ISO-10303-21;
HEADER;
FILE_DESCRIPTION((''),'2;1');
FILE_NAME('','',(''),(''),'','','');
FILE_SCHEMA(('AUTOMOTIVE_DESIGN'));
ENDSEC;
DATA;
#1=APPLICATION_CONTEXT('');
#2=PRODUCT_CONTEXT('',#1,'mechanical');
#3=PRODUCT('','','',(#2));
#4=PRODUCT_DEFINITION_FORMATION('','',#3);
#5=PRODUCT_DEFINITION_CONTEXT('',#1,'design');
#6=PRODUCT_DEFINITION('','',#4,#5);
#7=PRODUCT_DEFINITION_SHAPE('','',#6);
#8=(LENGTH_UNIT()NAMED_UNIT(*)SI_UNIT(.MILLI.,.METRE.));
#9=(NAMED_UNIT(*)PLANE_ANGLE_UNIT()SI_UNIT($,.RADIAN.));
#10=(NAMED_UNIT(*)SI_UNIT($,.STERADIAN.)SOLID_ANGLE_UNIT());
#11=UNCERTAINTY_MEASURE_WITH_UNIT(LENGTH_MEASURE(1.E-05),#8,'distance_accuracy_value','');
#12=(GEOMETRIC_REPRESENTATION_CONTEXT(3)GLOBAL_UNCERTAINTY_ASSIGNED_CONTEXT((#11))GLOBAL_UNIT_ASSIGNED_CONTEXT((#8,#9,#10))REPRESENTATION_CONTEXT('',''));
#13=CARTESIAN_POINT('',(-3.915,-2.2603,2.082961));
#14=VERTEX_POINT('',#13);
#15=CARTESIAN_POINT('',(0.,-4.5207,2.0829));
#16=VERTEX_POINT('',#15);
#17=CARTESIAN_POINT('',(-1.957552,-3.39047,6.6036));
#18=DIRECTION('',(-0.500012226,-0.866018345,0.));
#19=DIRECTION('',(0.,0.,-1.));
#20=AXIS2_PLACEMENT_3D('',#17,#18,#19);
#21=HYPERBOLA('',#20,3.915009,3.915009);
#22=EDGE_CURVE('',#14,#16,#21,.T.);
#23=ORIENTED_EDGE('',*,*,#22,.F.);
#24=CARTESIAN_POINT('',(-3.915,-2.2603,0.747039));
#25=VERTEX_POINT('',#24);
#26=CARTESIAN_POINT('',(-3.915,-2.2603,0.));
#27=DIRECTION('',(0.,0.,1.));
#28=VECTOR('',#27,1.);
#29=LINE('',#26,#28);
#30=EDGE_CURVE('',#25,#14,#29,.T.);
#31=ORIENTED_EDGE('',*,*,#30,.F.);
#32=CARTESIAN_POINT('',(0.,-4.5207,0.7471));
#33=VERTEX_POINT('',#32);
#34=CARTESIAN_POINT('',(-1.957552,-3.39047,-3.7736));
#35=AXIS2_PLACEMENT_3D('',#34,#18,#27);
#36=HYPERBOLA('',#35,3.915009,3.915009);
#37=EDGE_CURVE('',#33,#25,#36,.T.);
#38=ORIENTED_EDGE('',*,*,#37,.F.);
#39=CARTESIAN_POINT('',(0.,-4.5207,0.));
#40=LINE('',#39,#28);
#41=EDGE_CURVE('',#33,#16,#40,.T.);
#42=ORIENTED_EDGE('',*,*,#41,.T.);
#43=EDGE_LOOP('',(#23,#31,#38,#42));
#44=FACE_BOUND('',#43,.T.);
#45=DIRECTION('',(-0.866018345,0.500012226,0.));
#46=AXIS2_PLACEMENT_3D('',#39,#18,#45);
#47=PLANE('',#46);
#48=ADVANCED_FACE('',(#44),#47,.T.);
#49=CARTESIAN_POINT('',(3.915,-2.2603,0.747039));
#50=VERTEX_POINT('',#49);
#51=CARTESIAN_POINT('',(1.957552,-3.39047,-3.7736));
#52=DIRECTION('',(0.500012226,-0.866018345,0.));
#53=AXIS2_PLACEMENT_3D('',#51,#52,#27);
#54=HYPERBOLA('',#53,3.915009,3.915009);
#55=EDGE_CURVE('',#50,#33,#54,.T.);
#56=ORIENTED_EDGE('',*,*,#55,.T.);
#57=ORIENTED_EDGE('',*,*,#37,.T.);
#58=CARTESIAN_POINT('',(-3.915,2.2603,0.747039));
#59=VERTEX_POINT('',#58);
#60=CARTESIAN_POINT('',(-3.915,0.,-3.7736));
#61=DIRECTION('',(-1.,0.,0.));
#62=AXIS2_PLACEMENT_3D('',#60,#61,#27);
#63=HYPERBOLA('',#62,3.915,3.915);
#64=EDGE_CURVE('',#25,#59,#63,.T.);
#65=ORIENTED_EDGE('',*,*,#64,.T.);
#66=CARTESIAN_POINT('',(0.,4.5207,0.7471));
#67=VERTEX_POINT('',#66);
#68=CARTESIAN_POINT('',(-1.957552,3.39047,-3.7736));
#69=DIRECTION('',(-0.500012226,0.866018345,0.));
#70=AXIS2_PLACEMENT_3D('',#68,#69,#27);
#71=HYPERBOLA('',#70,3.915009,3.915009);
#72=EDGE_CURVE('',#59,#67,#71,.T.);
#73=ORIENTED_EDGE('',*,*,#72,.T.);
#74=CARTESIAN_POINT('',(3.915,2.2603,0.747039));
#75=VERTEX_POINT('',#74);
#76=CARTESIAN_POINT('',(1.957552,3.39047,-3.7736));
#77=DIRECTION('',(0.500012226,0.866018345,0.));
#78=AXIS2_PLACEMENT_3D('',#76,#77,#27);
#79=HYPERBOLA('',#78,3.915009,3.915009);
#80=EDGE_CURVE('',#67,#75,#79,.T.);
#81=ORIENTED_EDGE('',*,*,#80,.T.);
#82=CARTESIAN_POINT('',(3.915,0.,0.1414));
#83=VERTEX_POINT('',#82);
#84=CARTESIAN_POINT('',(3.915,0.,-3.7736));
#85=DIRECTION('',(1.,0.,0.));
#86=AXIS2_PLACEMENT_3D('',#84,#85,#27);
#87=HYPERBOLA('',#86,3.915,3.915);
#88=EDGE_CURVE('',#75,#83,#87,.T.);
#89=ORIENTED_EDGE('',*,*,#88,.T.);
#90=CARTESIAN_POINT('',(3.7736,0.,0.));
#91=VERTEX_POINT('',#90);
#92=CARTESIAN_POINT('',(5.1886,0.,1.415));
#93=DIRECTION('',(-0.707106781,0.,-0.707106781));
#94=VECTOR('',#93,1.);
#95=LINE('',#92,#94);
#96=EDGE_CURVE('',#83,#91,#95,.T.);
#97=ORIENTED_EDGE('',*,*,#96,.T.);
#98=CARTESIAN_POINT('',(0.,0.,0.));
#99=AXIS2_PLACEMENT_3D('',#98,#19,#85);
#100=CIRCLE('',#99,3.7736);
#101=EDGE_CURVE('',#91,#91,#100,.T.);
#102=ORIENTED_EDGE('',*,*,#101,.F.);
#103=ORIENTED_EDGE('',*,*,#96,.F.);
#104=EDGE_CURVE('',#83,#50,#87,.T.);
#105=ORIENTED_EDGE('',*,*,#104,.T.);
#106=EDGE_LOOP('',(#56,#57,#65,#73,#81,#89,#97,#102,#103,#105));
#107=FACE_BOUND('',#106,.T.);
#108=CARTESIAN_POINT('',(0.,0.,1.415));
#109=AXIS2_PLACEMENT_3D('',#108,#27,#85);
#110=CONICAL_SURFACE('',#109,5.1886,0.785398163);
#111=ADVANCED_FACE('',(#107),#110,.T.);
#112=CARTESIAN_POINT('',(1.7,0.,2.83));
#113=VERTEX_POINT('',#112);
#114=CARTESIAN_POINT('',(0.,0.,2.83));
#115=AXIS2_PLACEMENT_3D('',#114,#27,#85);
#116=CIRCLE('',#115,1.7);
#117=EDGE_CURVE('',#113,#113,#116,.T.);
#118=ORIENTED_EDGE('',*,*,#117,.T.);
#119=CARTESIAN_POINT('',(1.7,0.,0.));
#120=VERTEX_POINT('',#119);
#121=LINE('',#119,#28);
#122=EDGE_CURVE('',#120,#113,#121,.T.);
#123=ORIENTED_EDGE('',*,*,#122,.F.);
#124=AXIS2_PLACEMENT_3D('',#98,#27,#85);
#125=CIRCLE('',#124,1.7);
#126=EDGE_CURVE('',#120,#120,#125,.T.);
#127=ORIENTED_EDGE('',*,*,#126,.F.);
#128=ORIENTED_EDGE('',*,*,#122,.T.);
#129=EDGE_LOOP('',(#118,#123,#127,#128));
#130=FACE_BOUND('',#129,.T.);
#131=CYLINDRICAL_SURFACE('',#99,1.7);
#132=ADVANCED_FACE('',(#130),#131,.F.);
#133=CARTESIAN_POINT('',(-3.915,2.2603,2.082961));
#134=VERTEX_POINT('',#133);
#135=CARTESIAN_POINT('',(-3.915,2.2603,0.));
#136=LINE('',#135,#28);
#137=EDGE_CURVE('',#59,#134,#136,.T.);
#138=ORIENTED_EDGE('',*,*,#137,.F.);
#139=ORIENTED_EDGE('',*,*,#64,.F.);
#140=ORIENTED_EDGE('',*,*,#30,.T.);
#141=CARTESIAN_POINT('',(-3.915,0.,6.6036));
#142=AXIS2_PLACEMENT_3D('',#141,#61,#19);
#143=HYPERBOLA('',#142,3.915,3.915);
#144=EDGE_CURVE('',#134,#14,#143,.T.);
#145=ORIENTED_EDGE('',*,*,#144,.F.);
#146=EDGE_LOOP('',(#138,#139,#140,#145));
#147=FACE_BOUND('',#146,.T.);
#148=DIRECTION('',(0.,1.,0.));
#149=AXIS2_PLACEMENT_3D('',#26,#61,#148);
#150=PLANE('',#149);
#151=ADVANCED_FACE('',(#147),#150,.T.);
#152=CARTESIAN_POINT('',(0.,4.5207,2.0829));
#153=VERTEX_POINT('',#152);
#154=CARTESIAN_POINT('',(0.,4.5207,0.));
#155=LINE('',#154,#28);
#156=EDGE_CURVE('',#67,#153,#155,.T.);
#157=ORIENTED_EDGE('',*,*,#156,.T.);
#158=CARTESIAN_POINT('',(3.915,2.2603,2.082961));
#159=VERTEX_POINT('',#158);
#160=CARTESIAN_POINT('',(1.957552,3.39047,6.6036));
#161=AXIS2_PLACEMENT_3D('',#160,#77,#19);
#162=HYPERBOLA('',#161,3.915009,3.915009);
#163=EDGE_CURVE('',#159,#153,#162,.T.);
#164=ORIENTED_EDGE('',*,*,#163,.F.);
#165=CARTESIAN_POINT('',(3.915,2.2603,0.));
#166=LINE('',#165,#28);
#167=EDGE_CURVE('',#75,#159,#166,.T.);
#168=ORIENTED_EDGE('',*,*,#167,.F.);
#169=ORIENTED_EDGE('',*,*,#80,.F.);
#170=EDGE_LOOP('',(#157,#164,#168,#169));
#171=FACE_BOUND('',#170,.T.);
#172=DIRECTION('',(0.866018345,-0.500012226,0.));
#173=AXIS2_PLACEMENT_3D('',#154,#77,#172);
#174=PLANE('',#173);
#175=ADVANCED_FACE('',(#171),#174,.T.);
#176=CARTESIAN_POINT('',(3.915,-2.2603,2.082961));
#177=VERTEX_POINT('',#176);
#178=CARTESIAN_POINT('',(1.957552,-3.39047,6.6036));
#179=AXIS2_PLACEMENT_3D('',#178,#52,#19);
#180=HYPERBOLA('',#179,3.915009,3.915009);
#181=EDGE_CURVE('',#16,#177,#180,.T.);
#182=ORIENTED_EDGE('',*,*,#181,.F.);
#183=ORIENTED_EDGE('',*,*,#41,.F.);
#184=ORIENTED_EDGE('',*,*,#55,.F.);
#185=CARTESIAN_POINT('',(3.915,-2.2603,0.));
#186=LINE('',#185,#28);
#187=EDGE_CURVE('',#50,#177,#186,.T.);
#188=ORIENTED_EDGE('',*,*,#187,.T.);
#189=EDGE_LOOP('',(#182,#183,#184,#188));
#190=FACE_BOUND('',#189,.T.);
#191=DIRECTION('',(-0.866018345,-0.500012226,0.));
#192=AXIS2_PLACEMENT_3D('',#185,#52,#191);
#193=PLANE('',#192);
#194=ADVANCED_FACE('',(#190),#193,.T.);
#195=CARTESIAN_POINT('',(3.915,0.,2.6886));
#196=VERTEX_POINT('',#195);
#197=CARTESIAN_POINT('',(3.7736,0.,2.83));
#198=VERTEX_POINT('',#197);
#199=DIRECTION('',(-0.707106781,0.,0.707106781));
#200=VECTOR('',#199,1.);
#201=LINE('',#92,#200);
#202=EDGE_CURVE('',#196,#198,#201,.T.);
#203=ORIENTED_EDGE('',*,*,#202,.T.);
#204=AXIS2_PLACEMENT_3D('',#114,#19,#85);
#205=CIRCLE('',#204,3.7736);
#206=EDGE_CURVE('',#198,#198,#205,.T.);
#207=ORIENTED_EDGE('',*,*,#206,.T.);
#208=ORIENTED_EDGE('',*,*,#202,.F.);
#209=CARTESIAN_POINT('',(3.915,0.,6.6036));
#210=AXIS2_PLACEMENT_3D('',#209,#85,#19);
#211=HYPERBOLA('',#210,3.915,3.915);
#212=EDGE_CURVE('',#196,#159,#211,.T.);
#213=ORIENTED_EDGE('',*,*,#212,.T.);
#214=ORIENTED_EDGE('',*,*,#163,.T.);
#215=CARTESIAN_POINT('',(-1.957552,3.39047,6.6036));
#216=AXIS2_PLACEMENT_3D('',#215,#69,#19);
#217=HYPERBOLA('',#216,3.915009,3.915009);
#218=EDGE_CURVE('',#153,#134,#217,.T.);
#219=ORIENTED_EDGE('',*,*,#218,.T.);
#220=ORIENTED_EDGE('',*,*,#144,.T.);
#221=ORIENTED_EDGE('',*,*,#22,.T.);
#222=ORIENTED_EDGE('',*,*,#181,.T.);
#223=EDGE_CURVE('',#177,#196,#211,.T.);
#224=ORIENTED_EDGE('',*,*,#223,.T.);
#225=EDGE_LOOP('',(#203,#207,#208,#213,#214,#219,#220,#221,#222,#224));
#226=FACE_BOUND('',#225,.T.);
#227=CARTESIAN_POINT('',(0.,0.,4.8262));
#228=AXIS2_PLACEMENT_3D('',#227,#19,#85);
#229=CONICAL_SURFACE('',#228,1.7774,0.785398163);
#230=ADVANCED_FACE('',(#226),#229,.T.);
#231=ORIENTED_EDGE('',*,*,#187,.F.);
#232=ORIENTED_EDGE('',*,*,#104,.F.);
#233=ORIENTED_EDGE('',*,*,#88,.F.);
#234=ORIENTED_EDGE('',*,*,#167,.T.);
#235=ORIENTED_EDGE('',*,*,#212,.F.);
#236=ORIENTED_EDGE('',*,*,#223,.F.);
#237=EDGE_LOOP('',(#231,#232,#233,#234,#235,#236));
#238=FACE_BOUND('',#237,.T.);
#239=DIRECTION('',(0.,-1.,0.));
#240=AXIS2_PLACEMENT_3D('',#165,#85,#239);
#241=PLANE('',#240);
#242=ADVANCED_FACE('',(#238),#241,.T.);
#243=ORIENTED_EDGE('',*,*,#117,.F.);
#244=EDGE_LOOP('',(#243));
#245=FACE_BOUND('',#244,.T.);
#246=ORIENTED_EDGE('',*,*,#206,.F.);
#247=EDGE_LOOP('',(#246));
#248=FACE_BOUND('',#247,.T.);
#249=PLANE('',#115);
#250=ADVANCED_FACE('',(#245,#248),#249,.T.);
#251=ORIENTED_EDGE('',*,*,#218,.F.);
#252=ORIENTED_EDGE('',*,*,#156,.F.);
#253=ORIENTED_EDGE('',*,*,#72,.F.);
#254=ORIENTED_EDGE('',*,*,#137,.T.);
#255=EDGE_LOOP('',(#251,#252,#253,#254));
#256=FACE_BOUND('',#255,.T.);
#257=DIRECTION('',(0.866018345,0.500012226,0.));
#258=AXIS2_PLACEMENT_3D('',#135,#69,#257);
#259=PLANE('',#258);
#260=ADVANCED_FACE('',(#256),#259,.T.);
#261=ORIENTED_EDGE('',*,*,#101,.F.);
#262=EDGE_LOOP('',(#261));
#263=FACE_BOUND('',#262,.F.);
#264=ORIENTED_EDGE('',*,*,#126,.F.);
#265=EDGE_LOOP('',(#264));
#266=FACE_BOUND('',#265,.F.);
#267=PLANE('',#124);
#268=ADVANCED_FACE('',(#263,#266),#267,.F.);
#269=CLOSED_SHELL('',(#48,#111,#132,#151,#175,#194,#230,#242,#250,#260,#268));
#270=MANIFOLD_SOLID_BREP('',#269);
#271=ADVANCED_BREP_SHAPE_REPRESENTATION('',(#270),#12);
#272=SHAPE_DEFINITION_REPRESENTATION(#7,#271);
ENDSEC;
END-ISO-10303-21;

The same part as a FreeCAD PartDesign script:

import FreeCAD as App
import Part
import Sketcher

V = App.Vector
Q = App.Units.Quantity

doc = App.newDocument("Part")
params = doc.addObject("Spreadsheet::Sheet", "Params")
for row, (alias, value) in enumerate([
    ("sketch1_diameter", "3.4 mm"),
    ("pad1_length", "2.83 mm"),
    ("groove_angle", "360 deg"),
], start=1):
    params.set(f"A{row}", alias)
    params.set(f"B{row}", "=" + value)
    params.setAlias(f"B{row}", alias)

body = doc.addObject("PartDesign::Body", "Body")

sketch1 = body.newObject("Sketcher::SketchObject", "Sketch")
sketch1.AttachmentSupport = (doc.getObject("XY_Plane"), [""])
sketch1.MapMode = "FlatFace"
sketch1.addGeometry(Part.LineSegment(V(3.9, 2.3, 0), V(0, 4.5, 0)), False)
sketch1.addGeometry(Part.LineSegment(V(0, 4.5, 0), V(-3.9, 2.3, 0)), False)
sketch1.addGeometry(Part.LineSegment(V(-3.9, 2.3, 0), V(-3.9, -2.3, 0)), False)
sketch1.addGeometry(Part.LineSegment(V(-3.9, -2.3, 0), V(0, -4.5, 0)), False)
sketch1.addGeometry(Part.LineSegment(V(0, -4.5, 0), V(3.9, -2.3, 0)), False)
sketch1.addGeometry(Part.LineSegment(V(3.9, -2.3, 0), V(3.9, 2.3, 0)), False)
sketch1.addGeometry(Part.Circle(V(0, 0, 0), V(0, 0, 1), 1.7), False)
sketch1.addConstraint(Sketcher.Constraint("Coincident", 0, 2, 1, 1))
sketch1.addConstraint(Sketcher.Constraint("Coincident", 1, 2, 2, 1))
sketch1.addConstraint(Sketcher.Constraint("Coincident", 2, 2, 3, 1))
sketch1.addConstraint(Sketcher.Constraint("Coincident", 3, 2, 4, 1))
sketch1.addConstraint(Sketcher.Constraint("Coincident", 4, 2, 5, 1))
sketch1.addConstraint(Sketcher.Constraint("Coincident", 5, 2, 0, 1))
sketch1.addConstraint(Sketcher.Constraint("Vertical", 2))
sketch1.addConstraint(Sketcher.Constraint("Vertical", 5))
sketch1.addConstraint(Sketcher.Constraint("Coincident", 6, 3, -1, 1))
sketch1.addConstraint(Sketcher.Constraint("Symmetric", 0, 2, 3, 2, -1, 1))
sketch1.addConstraint(Sketcher.Constraint("Symmetric", 1, 2, 4, 2, -1, 1))
sketch1.addConstraint(Sketcher.Constraint("PointOnObject", 0, 2, -2))
sketch1.addConstraint(Sketcher.Constraint("Parallel", 0, 3))
sketch1.addConstraint(Sketcher.Constraint("Horizontal", 2, 2, 4, 2))
sketch1.addConstraint(Sketcher.Constraint("Diameter", 6, Q("3.4 mm")))
sketch1.addConstraint(Sketcher.Constraint("Angle", 0, Q("149.9992 deg")))
sketch1.addConstraint(Sketcher.Constraint("DistanceX", 2, 2, 4, 2, Q("7.83 mm")))
sketch1.addConstraint(Sketcher.Constraint("DistanceY", 2, 2, 2, 1, Q("4.5206 mm")))
sketch1.setExpression("Constraints[14]", "Params.sketch1_diameter")
pad1 = body.newObject("PartDesign::Pad", "Pad")
pad1.Profile = sketch1
pad1.setExpression("Length", "Params.pad1_length")

sketch2 = body.newObject("Sketcher::SketchObject", "Sketch001")
sketch2.AttachmentSupport = (doc.getObject("XZ_Plane"), [""])
sketch2.MapMode = "FlatFace"
sketch2.addGeometry(Part.LineSegment(V(4.6, 7.6, 0), V(1.8, 4.8, 0)), False)
sketch2.addGeometry(Part.LineSegment(V(1.8, 4.8, 0), V(5.2, 1.4, 0)), False)
sketch2.addGeometry(Part.LineSegment(V(5.2, 1.4, 0), V(2.2, -1.6, 0)), False)
sketch2.addGeometry(Part.LineSegment(V(2.2, -1.6, 0), V(4.5, -3.8, 0)), False)
sketch2.addGeometry(Part.LineSegment(V(4.5, -3.8, 0), V(10.3, 1.9, 0)), False)
sketch2.addGeometry(Part.LineSegment(V(10.3, 1.9, 0), V(4.6, 7.6, 0)), False)
sketch2.addConstraint(Sketcher.Constraint("Coincident", 0, 2, 1, 1))
sketch2.addConstraint(Sketcher.Constraint("Coincident", 1, 2, 2, 1))
sketch2.addConstraint(Sketcher.Constraint("Coincident", 2, 2, 3, 1))
sketch2.addConstraint(Sketcher.Constraint("Coincident", 3, 2, 4, 1))
sketch2.addConstraint(Sketcher.Constraint("Coincident", 4, 2, 5, 1))
sketch2.addConstraint(Sketcher.Constraint("Coincident", 5, 2, 0, 1))
sketch2.addConstraint(Sketcher.Constraint("Perpendicular", 0, 1))
sketch2.addConstraint(Sketcher.Constraint("Perpendicular", 1, 2))
sketch2.addConstraint(Sketcher.Constraint("Perpendicular", 2, 3))
sketch2.addConstraint(Sketcher.Constraint("Perpendicular", 3, 4))
sketch2.addConstraint(Sketcher.Constraint("Perpendicular", 4, 5))
sketch2.addConstraint(Sketcher.Constraint("Angle", 1, Q("-45 deg")))
sketch2.addConstraint(Sketcher.Constraint("DistanceY", 3, 2, -1, 1, Q("3.85 mm")))
sketch2.addConstraint(Sketcher.Constraint("DistanceX", 0, 2, 4, 2, Q("8.51 mm")))
sketch2.addConstraint(Sketcher.Constraint("Distance", 4, Q("8.198 mm")))
sketch2.addConstraint(Sketcher.Constraint("DistanceY", -1, 1, 1, 2, Q("1.415 mm")))
sketch2.addConstraint(Sketcher.Constraint("DistanceX", -1, 1, 2, 2, Q("2.207 mm")))
sketch2.addConstraint(Sketcher.Constraint("DistanceX", 3, 2, 1, 2, Q("0.698 mm")))
groove = body.newObject("PartDesign::Groove", "Groove")
groove.Profile = sketch2
groove.ReferenceAxis = (sketch2, ["V_Axis"])
groove.setExpression("Angle", "Params.groove_angle")

doc.recompute()
